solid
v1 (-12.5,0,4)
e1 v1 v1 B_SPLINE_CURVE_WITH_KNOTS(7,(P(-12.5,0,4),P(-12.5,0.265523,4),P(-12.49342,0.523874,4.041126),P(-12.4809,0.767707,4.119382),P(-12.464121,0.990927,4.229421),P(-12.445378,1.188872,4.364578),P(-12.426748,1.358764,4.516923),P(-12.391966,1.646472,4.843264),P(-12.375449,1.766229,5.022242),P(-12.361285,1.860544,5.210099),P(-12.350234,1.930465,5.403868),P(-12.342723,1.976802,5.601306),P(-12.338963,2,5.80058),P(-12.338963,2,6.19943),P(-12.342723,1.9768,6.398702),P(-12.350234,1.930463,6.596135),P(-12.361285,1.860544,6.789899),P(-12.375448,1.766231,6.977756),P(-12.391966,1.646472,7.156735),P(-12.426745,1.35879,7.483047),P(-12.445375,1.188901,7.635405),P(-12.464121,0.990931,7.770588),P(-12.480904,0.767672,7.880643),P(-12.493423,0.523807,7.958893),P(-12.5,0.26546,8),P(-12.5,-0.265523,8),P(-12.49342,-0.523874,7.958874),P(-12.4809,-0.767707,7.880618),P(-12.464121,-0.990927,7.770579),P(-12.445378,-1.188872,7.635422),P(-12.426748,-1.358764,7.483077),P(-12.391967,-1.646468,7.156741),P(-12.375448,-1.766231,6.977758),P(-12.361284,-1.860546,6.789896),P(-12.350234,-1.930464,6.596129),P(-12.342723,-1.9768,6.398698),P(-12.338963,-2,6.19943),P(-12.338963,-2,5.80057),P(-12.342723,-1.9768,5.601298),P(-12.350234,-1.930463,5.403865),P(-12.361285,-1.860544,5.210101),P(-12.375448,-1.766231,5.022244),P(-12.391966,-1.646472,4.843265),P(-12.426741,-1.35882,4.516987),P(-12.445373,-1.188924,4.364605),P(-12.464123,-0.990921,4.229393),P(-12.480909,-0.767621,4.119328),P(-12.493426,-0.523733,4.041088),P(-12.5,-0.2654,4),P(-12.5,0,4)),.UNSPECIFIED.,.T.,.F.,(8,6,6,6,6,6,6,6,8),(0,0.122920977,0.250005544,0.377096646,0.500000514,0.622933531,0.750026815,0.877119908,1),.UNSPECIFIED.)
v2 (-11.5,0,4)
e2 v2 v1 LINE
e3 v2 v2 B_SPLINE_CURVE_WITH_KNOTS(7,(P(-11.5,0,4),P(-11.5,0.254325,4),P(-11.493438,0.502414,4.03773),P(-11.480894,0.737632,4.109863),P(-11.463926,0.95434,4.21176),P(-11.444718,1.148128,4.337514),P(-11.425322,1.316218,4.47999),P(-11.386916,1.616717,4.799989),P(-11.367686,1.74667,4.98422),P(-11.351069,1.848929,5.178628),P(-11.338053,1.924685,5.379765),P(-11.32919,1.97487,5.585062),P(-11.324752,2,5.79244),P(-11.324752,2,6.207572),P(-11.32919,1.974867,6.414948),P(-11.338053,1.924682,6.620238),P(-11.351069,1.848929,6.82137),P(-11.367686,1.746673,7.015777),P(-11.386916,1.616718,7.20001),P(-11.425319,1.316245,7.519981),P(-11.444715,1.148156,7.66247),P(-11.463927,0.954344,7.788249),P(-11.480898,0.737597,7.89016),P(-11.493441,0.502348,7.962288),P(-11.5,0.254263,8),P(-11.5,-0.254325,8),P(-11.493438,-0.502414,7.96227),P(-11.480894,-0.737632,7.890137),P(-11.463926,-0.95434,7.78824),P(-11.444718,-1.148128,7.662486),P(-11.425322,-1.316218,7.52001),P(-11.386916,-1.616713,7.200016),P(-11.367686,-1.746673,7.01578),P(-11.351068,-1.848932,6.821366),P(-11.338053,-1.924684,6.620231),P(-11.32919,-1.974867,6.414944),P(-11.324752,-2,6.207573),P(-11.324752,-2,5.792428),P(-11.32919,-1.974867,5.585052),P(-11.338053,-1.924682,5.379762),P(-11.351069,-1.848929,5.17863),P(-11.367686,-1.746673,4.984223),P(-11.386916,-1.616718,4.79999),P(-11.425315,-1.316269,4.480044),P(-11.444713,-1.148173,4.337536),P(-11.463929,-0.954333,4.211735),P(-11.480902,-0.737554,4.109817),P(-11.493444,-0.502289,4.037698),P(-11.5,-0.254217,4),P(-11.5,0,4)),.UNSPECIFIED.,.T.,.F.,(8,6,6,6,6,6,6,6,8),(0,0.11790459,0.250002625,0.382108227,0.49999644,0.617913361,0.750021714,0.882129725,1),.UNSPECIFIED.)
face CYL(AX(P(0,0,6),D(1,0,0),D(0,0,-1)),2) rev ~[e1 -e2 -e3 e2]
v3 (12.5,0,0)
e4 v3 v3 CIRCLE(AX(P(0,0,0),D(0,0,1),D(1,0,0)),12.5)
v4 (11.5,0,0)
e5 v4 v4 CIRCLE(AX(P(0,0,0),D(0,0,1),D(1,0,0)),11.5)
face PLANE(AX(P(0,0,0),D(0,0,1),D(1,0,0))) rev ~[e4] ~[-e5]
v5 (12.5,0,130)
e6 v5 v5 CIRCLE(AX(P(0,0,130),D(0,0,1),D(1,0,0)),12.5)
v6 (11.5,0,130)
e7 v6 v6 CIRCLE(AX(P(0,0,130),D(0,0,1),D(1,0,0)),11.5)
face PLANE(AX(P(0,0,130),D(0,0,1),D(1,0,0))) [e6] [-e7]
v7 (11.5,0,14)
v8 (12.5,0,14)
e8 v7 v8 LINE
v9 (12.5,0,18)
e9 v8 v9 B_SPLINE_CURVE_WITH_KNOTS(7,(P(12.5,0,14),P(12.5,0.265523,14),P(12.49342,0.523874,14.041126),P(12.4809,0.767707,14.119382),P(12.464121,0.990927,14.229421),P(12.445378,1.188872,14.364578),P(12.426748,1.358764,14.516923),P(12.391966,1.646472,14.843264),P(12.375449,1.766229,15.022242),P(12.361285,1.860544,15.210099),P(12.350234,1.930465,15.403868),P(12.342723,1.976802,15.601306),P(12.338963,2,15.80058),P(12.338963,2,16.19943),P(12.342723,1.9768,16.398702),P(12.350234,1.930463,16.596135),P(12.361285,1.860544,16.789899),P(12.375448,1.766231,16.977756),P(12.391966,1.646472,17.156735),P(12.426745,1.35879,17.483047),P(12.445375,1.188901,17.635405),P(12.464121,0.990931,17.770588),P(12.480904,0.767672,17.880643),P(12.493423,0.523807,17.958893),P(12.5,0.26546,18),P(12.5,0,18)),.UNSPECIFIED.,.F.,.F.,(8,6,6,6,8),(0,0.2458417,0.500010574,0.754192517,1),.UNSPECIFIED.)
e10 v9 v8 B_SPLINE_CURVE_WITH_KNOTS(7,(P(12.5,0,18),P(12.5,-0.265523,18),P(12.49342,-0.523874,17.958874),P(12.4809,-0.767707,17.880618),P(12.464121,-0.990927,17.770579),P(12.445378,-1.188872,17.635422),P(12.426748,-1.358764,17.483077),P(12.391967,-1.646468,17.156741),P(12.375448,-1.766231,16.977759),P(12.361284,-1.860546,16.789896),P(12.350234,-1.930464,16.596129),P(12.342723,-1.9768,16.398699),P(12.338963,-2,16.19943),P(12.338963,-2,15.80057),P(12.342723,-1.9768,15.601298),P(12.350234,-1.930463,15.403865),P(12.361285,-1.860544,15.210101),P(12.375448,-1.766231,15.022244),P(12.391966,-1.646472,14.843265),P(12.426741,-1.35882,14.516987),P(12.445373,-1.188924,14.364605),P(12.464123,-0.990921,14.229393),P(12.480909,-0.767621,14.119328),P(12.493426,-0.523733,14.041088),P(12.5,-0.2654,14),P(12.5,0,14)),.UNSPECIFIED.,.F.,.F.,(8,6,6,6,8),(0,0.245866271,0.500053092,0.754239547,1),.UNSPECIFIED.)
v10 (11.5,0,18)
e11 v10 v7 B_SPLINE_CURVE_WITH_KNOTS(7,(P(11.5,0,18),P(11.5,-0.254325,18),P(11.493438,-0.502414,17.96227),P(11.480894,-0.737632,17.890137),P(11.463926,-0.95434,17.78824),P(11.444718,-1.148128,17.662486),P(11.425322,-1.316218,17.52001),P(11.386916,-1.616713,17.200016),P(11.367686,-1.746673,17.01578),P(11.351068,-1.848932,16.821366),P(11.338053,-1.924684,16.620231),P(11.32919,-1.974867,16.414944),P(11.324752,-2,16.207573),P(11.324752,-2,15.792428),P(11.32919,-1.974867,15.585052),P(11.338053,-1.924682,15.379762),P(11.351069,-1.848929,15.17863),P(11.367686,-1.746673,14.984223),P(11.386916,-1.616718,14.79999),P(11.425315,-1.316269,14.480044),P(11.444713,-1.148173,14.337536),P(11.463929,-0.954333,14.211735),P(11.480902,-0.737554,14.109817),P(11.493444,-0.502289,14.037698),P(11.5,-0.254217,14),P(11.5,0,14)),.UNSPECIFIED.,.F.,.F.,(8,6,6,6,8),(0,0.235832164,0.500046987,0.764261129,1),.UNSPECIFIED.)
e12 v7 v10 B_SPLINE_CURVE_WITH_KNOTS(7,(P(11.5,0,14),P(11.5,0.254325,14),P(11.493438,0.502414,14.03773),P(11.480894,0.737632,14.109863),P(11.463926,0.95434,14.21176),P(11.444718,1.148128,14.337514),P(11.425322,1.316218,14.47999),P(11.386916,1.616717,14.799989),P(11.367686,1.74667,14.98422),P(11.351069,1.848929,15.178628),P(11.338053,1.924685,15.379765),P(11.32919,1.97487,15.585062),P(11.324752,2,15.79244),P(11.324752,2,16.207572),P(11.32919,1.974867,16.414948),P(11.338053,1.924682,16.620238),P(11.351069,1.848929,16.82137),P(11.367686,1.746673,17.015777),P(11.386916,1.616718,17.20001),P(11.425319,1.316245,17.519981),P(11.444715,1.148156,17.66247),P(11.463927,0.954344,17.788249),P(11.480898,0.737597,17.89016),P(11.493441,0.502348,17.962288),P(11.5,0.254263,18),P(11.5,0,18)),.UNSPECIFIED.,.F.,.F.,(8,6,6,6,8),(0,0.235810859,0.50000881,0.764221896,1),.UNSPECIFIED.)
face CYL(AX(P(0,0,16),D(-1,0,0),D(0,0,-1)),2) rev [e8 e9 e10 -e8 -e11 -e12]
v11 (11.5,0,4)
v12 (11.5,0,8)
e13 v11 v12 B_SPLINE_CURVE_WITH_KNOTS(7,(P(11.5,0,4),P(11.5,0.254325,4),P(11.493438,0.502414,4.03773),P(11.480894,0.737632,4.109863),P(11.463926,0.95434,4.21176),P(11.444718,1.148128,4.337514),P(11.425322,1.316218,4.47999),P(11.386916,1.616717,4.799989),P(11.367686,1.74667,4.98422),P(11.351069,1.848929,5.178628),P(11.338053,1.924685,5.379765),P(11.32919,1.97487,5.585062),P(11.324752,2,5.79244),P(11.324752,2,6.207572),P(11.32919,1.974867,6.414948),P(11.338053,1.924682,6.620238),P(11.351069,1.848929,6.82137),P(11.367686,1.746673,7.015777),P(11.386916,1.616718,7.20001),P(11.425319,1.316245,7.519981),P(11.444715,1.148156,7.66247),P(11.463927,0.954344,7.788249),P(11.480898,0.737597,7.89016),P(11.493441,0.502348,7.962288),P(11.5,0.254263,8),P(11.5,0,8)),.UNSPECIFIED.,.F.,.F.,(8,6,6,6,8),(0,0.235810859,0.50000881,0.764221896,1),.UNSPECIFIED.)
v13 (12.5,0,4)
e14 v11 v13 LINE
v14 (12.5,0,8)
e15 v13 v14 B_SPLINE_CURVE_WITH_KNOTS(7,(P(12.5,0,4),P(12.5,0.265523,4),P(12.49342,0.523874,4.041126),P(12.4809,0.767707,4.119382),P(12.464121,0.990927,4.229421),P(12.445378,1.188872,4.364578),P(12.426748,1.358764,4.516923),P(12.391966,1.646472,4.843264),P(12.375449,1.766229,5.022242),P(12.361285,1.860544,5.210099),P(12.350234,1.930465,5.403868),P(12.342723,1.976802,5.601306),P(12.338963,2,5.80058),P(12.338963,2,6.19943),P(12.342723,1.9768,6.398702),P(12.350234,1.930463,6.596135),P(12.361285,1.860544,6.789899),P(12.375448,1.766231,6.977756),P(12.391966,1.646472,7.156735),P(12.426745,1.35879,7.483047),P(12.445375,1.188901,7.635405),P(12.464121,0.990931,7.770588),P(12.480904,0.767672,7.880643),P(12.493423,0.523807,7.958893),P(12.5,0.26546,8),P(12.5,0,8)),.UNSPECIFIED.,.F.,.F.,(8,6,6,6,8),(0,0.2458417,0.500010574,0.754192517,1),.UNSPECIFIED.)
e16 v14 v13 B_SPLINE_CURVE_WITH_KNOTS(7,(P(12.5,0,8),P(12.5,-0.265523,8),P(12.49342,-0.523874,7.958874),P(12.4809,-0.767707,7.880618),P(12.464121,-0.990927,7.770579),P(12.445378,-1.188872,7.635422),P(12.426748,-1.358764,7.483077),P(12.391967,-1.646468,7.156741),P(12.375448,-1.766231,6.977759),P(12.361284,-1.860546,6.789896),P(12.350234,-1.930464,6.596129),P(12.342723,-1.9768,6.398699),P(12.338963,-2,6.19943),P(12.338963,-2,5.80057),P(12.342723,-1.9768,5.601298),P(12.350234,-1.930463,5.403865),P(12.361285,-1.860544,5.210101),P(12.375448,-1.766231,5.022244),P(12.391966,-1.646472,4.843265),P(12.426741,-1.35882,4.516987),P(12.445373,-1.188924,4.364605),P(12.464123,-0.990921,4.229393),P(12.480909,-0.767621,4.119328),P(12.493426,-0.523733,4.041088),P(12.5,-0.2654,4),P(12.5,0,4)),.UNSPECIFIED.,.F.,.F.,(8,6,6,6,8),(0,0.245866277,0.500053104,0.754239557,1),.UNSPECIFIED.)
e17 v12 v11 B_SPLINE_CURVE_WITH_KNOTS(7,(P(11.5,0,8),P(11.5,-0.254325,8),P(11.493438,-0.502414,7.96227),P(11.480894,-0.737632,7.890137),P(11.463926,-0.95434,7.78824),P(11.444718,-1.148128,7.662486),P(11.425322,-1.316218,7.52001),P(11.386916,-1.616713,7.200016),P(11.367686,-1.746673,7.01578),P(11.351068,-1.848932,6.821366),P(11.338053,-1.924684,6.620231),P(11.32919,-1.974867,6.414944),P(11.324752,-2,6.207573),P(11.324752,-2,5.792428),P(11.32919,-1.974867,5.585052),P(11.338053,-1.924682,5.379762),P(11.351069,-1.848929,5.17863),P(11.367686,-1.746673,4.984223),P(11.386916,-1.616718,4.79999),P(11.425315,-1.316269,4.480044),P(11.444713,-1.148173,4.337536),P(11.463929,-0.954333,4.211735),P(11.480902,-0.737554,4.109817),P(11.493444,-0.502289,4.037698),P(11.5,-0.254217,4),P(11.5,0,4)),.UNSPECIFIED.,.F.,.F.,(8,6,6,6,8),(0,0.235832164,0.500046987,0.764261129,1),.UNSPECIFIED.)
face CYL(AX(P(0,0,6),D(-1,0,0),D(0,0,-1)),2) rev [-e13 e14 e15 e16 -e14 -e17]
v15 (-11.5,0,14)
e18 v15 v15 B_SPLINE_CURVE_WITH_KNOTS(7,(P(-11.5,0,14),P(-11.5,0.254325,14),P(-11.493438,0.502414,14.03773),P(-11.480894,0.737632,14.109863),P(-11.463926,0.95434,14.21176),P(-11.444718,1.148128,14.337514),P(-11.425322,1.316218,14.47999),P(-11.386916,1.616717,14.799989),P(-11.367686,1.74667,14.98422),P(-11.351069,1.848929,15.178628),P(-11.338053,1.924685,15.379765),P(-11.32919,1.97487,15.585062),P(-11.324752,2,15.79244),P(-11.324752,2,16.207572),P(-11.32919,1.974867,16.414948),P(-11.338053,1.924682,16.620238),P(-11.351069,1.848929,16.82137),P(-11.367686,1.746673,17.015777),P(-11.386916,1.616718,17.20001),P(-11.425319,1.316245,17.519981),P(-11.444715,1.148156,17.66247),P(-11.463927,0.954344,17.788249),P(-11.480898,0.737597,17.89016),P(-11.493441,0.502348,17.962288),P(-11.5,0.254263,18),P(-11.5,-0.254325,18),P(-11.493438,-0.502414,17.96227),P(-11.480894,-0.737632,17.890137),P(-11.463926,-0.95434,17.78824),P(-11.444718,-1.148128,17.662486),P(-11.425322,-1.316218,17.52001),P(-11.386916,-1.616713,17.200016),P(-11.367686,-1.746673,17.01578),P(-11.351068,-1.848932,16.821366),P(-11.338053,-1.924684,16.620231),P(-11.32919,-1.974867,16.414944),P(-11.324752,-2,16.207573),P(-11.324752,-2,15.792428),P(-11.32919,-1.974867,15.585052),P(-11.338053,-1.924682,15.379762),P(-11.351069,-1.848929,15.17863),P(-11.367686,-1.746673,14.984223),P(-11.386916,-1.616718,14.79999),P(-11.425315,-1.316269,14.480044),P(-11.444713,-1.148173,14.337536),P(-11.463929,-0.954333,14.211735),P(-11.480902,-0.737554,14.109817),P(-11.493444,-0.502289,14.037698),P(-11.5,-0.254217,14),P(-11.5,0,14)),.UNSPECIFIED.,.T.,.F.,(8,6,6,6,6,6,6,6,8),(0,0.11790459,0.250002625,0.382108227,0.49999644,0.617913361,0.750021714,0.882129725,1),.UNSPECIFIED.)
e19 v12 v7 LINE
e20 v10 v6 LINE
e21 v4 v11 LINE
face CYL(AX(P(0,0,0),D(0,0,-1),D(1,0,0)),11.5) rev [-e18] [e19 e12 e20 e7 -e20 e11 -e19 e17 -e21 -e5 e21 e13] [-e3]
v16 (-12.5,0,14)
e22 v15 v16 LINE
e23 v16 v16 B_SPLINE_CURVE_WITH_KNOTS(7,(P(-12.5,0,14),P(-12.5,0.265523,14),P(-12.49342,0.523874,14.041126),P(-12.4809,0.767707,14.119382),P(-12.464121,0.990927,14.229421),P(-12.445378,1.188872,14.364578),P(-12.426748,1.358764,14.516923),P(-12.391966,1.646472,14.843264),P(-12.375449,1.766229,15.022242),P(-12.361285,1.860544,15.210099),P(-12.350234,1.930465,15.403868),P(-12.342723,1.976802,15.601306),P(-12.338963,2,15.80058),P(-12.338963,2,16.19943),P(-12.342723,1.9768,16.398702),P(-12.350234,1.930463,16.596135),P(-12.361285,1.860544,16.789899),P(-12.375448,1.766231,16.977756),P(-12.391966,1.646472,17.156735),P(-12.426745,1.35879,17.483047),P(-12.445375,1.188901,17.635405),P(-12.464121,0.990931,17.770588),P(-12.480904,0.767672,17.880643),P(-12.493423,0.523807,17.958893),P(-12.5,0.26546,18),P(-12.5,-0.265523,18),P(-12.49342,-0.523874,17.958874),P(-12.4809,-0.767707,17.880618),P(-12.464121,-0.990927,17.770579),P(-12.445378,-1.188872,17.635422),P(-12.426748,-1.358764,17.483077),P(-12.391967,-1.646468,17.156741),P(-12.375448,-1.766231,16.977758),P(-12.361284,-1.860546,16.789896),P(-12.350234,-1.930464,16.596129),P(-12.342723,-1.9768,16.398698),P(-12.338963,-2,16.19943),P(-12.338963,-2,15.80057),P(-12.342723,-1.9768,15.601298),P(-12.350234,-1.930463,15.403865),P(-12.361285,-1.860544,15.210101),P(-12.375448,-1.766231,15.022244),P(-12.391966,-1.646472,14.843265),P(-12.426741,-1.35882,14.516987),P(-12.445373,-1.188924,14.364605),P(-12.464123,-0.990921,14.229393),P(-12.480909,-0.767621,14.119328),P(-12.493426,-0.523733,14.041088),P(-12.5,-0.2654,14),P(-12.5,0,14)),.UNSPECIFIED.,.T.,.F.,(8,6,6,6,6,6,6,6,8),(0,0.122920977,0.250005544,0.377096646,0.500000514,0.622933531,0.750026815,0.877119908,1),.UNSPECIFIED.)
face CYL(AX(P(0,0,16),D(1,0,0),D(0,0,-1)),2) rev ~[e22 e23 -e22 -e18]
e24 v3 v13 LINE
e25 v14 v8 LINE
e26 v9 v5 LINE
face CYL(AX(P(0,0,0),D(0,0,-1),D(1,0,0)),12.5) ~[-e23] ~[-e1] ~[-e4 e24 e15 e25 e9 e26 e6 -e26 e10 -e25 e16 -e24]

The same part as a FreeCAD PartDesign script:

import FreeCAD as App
import Part
import Sketcher

V = App.Vector
Q = App.Units.Quantity

doc = App.newDocument("Part")
body = doc.addObject("PartDesign::Body", "Body")

# Sketch on XY plane
sketch1 = body.newObject("Sketcher::SketchObject", "Sketch")
sketch1.AttachmentSupport = (doc.getObject("XY_Plane"), [""])
sketch1.MapMode = "FlatFace"
sketch1.addGeometry([
    Part.Circle(V(0, 0, 0), V(0, 0, 1), 12),
    Part.Circle(V(0, 0, 0), V(0, 0, 1), 12),
], False)
sketch1.addConstraint([
    Sketcher.Constraint("Coincident", 0, 3, -1, 1),
    Sketcher.Constraint("Coincident", 1, 3, -1, 1),
    Sketcher.Constraint("Diameter", 0, Q("25 mm")),
    Sketcher.Constraint("Diameter", 1, Q("23 mm")),
])
pad1 = body.newObject("PartDesign::Pad", "Pad")
pad1.Profile = sketch1
pad1.Length = 130

# Sketch on YZ plane
sketch2 = body.newObject("Sketcher::SketchObject", "Sketch001")
sketch2.AttachmentSupport = (doc.getObject("YZ_Plane"), [""])
sketch2.MapMode = "FlatFace"
sketch2.addGeometry([
    Part.Circle(V(0, 6, 0), V(0, 0, 1), 2),
    Part.Circle(V(0, 16, 0), V(0, 0, 1), 2),
], False)
sketch2.addConstraint([
    Sketcher.Constraint("Equal", 0, 1),
    Sketcher.Constraint("PointOnObject", 0, 3, -2),
    Sketcher.Constraint("PointOnObject", 1, 3, -2),
    Sketcher.Constraint("Diameter", 0, Q("4 mm")),
    Sketcher.Constraint("DistanceY", -1, 1, 0, 3, Q("6 mm")),
    Sketcher.Constraint("DistanceY", -1, 1, 1, 3, Q("16 mm")),
])
pocket1 = body.newObject("PartDesign::Pocket", "Pocket")
pocket1.Profile = sketch2
pocket1.Type = "ThroughAll"
pocket1.Midplane = True

doc.recompute()
